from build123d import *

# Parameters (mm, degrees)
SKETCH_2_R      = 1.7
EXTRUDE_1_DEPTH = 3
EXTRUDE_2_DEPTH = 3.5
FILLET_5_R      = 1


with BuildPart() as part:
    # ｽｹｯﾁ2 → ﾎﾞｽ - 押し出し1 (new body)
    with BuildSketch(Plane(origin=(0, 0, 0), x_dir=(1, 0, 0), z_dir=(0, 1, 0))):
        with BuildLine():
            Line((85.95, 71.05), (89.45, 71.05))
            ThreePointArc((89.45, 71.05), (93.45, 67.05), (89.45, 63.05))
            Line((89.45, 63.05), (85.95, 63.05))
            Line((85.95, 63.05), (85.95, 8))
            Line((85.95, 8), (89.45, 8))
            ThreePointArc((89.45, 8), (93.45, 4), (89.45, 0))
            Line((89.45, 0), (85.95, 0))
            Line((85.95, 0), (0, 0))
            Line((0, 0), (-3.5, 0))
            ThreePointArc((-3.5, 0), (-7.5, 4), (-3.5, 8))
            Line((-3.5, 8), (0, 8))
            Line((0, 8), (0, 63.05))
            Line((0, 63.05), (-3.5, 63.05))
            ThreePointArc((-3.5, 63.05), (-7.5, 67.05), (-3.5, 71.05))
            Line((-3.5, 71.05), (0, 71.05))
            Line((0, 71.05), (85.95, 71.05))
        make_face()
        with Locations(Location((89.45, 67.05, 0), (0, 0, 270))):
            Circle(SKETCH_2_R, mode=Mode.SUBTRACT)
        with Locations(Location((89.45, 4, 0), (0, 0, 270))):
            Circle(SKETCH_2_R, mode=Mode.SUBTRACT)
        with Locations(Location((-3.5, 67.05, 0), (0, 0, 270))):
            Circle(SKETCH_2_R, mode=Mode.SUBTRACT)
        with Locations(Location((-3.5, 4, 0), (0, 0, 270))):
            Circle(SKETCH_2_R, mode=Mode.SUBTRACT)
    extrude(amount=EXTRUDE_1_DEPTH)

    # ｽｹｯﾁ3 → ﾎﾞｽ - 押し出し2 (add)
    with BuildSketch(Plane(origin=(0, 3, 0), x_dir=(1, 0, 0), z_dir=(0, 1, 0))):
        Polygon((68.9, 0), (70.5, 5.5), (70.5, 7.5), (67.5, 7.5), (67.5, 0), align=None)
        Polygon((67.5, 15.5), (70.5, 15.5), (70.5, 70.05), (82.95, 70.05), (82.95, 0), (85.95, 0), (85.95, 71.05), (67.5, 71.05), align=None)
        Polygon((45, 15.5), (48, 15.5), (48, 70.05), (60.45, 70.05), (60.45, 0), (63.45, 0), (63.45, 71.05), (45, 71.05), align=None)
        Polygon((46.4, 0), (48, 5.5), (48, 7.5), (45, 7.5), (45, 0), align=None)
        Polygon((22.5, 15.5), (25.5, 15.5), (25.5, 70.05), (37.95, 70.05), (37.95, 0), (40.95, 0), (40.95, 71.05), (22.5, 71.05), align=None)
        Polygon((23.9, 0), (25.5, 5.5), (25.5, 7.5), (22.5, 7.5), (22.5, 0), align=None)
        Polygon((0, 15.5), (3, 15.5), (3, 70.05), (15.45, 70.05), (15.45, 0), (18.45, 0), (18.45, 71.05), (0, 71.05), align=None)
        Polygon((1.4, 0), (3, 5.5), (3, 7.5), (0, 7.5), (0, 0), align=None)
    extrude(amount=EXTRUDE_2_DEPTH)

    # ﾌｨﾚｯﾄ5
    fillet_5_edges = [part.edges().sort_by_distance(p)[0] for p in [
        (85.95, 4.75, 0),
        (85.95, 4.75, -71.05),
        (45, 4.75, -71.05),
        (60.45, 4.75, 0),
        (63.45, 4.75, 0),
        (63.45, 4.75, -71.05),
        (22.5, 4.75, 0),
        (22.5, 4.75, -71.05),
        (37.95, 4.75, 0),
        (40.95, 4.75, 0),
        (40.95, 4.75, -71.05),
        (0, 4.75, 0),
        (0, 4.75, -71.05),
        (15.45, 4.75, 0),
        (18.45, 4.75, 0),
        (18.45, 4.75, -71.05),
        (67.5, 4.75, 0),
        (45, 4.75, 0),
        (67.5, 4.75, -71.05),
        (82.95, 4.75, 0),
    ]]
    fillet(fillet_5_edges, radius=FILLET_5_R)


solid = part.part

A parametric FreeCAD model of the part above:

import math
import FreeCAD as App
import Part
import Sketcher


def edges_at(feature, points):
    """Names of the edges that pass closest to the given points."""
    edges = feature.Shape.Edges
    near = lambda p: min(range(len(edges)), key=lambda i: edges[i].distToShape(Part.Vertex(*p))[0])
    return sorted({f"Edge{near(p) + 1}" for p in points})


def add_polygon(sketch, points):
    """Adds a closed chain of lines whose ends are joined by coincident constraints."""
    first, n = sketch.GeometryCount, len(points)
    for a, b in zip(points, points[1:] + points[:1]):
        sketch.addGeometry(Part.LineSegment(App.Vector(*a, 0), App.Vector(*b, 0)), False)
    for i in range(n):
        sketch.addConstraint(Sketcher.Constraint("Coincident", first + i, 2, first + (i + 1) % n, 1))

doc = App.newDocument("Part")
body = doc.addObject("PartDesign::Body", "Body")

# Sketch on XZ plane
sketch1 = body.newObject("Sketcher::SketchObject", "Sketch")
sketch1.AttachmentSupport = (doc.getObject("XZ_Plane"), [""])
sketch1.MapMode = "FlatFace"
sketch1.addGeometry([
    Part.ArcOfCircle(Part.Circle(App.Vector(89.5, -67, 0), App.Vector(0, 0, 1), 4), math.radians(-90), math.radians(90)),  # 0
    Part.LineSegment(App.Vector(89.5, -71, 0), App.Vector(-3.5, -71, 0)),  # 1
    Part.ArcOfCircle(Part.Circle(App.Vector(-3.5, -67, 0), App.Vector(0, 0, 1), 4), math.radians(90), math.radians(270)),  # 2
    Part.LineSegment(App.Vector(-3.5, -63, 0), App.Vector(0, -63, 0)),  # 3
    Part.LineSegment(App.Vector(0, -63, 0), App.Vector(0, -8, 0)),  # 4
    Part.LineSegment(App.Vector(0, -8, 0), App.Vector(-3.5, -8, 0)),  # 5
    Part.ArcOfCircle(Part.Circle(App.Vector(-3.5, -4, 0), App.Vector(0, 0, 1), 4), math.radians(90), math.radians(270)),  # 6
    Part.LineSegment(App.Vector(-3.5, 0, 0), App.Vector(89.5, 0, 0)),  # 7
    Part.ArcOfCircle(Part.Circle(App.Vector(89.5, -4, 0), App.Vector(0, 0, 1), 4), math.radians(-90), math.radians(90)),  # 8
    Part.LineSegment(App.Vector(89.5, -8, 0), App.Vector(86, -8, 0)),  # 9
    Part.LineSegment(App.Vector(86, -8, 0), App.Vector(86, -63, 0)),  # 10
    Part.LineSegment(App.Vector(86, -63, 0), App.Vector(89.5, -63, 0)),  # 11
    Part.Circle(App.Vector(89.5, -4, 0), App.Vector(0, 0, 1), 1.7),  # 12
    Part.Circle(App.Vector(-3.5, -4, 0), App.Vector(0, 0, 1), 1.7),  # 13
    Part.Circle(App.Vector(89.5, -67, 0), App.Vector(0, 0, 1), 1.7),  # 14
    Part.Circle(App.Vector(-3.5, -67, 0), App.Vector(0, 0, 1), 1.7),  # 15
], False)
sketch1.addConstraint([
    Sketcher.Constraint("Tangent", 0, 1, 1, 1),
    Sketcher.Constraint("Tangent", 1, 2, 2, 2),
    Sketcher.Constraint("Tangent", 2, 1, 3, 1),
    Sketcher.Constraint("Coincident", 3, 2, 4, 1),
    Sketcher.Constraint("Coincident", 4, 2, 5, 1),
    Sketcher.Constraint("Tangent", 5, 2, 6, 2),
    Sketcher.Constraint("Tangent", 6, 1, 7, 1),
    Sketcher.Constraint("Tangent", 7, 2, 8, 2),
    Sketcher.Constraint("Tangent", 8, 1, 9, 1),
    Sketcher.Constraint("Coincident", 9, 2, 10, 1),
    Sketcher.Constraint("Coincident", 10, 2, 11, 1),
    Sketcher.Constraint("Tangent", 11, 2, 0, 2),
    Sketcher.Constraint("Horizontal", 1),
    Sketcher.Constraint("Horizontal", 3),
    Sketcher.Constraint("Vertical", 4),
    Sketcher.Constraint("Horizontal", 5),
    Sketcher.Constraint("Horizontal", 7),
    Sketcher.Constraint("Horizontal", 9),
    Sketcher.Constraint("Vertical", 10),
    Sketcher.Constraint("Horizontal", 11),
    Sketcher.Constraint("Coincident", 12, 3, 8, 3),
    Sketcher.Constraint("Coincident", 13, 3, 6, 3),
    Sketcher.Constraint("Coincident", 14, 3, 0, 3),
    Sketcher.Constraint("Coincident", 15, 3, 2, 3),
    Sketcher.Constraint("Equal", 0, 2),
    Sketcher.Constraint("Equal", 2, 6),
    Sketcher.Constraint("Equal", 6, 8),
    Sketcher.Constraint("Equal", 12, 13),
    Sketcher.Constraint("Equal", 13, 14),
    Sketcher.Constraint("Equal", 14, 15),
    Sketcher.Constraint("PointOnObject", 3, 2, -2),
    Sketcher.Constraint("PointOnObject", 6, 1, -1),
    Sketcher.Constraint("Vertical", 2, 3, 6, 3),
    Sketcher.Constraint("Vertical", 0, 3, 8, 3),
    Sketcher.Constraint("Equal", 5, 9),
    Sketcher.Constraint("Radius", 0, 4.0),
    Sketcher.Constraint("Diameter", 12, 3.4),
    Sketcher.Constraint("DistanceX", 3, 1, 3, 2, 3.5),
    Sketcher.Constraint("DistanceX", 1, 2, 1, 1, 92.95),
    Sketcher.Constraint("DistanceY", 4, 1, 4, 2, 55.05),
])
pad1 = body.newObject("PartDesign::Pad", "Pad")
pad1.Profile = sketch1
pad1.Length = 3
pad1.Reversed = True

# Sketch on XZ plane
sketch2 = body.newObject("Sketcher::SketchObject", "Sketch001")
sketch2.AttachmentSupport = (doc.getObject("XZ_Plane"), [""])
sketch2.MapMode = "FlatFace"
sketch2.AttachmentOffset = App.Placement(App.Vector(0, 0, -3), App.Rotation())
add_polygon(sketch2, [(68.9, 0), (70.5, -5.5), (70.5, -7.5), (67.5, -7.5), (67.5, 0)])  # lines 0-4
add_polygon(sketch2, [(67.5, -15.5), (70.5, -15.5), (70.5, -70), (83, -70), (83, 0), (86, 0), (86, -71), (67.5, -71)])  # lines 5-12
add_polygon(sketch2, [(45, -15.5), (48, -15.5), (48, -70), (60.5, -70), (60.5, 0), (63.5, 0), (63.5, -71), (45, -71)])  # lines 13-20
add_polygon(sketch2, [(46.4, 0), (48, -5.5), (48, -7.5), (45, -7.5), (45, 0)])  # lines 21-25
add_polygon(sketch2, [(22.5, -15.5), (25.5, -15.5), (25.5, -70), (38, -70), (38, 0), (41, 0), (41, -71), (22.5, -71)])  # lines 26-33
add_polygon(sketch2, [(23.9, 0), (25.5, -5.5), (25.5, -7.5), (22.5, -7.5), (22.5, 0)])  # lines 34-38
add_polygon(sketch2, [(0, -15.5), (3, -15.5), (3, -70), (15.4, -70), (15.4, 0), (18.4, 0), (18.4, -71), (0, -71)])  # lines 39-46
add_polygon(sketch2, [(1.4, 0), (3, -5.5), (3, -7.5), (0, -7.5), (0, 0)])  # lines 47-51
sketch2.addConstraint([
    Sketcher.Constraint("Vertical", 1),
    Sketcher.Constraint("Horizontal", 2),
    Sketcher.Constraint("Vertical", 3),
    Sketcher.Constraint("Horizontal", 4),
    Sketcher.Constraint("Horizontal", 5),
    Sketcher.Constraint("Vertical", 6),
    Sketcher.Constraint("Horizontal", 7),
    Sketcher.Constraint("Vertical", 8),
    Sketcher.Constraint("Horizontal", 9),
    Sketcher.Constraint("Vertical", 10),
    Sketcher.Constraint("Horizontal", 11),
    Sketcher.Constraint("Vertical", 12),
    Sketcher.Constraint("Horizontal", 13),
    Sketcher.Constraint("Vertical", 14),
    Sketcher.Constraint("Horizontal", 15),
    Sketcher.Constraint("Vertical", 16),
    Sketcher.Constraint("Horizontal", 17),
    Sketcher.Constraint("Vertical", 18),
    Sketcher.Constraint("Horizontal", 19),
    Sketcher.Constraint("Vertical", 20),
    Sketcher.Constraint("Vertical", 22),
    Sketcher.Constraint("Horizontal", 23),
    Sketcher.Constraint("Vertical", 24),
    Sketcher.Constraint("Horizontal", 25),
    Sketcher.Constraint("Horizontal", 26),
    Sketcher.Constraint("Vertical", 27),
    Sketcher.Constraint("Horizontal", 28),
    Sketcher.Constraint("Vertical", 29),
    Sketcher.Constraint("Horizontal", 30),
    Sketcher.Constraint("Vertical", 31),
    Sketcher.Constraint("Horizontal", 32),
    Sketcher.Constraint("Vertical", 33),
    Sketcher.Constraint("Vertical", 35),
    Sketcher.Constraint("Horizontal", 36),
    Sketcher.Constraint("Vertical", 37),
    Sketcher.Constraint("Horizontal", 38),
    Sketcher.Constraint("Horizontal", 39),
    Sketcher.Constraint("Vertical", 40),
    Sketcher.Constraint("Horizontal", 41),
    Sketcher.Constraint("Vertical", 42),
    Sketcher.Constraint("Horizontal", 43),
    Sketcher.Constraint("Vertical", 44),
    Sketcher.Constraint("Horizontal", 45),
    Sketcher.Constraint("Vertical", 46),
    Sketcher.Constraint("Vertical", 48),
    Sketcher.Constraint("Horizontal", 49),
    Sketcher.Constraint("Vertical", 50),
    Sketcher.Constraint("Horizontal", 51),
    Sketcher.Constraint("Coincident", 50, 2, -1, 1),
    Sketcher.Constraint("PointOnObject", 3, 2, -1),
    Sketcher.Constraint("PointOnObject", 8, 2, -1),
    Sketcher.Constraint("PointOnObject", 16, 2, -1),
    Sketcher.Constraint("PointOnObject", 24, 2, -1),
    Sketcher.Constraint("PointOnObject", 29, 2, -1),
    Sketcher.Constraint("PointOnObject", 37, 2, -1),
    Sketcher.Constraint("PointOnObject", 42, 2, -1),
    Sketcher.Constraint("PointOnObject", 45, 2, -2),
    Sketcher.Constraint("Parallel", 0, 21),
    Sketcher.Constraint("Parallel", 21, 34),
    Sketcher.Constraint("Parallel", 34, 47),
    Sketcher.Constraint("Horizontal", 12, 2, 13, 2),
    Sketcher.Constraint("Horizontal", 7, 2, 14, 2),
    Sketcher.Constraint("Horizontal", 11, 2, 18, 2),
    Sketcher.Constraint("Horizontal", 0, 2, 21, 2),
    Sketcher.Constraint("Horizontal", 2, 2, 22, 2),
    Sketcher.Constraint("Horizontal", 20, 2, 26, 2),
    Sketcher.Constraint("Horizontal", 15, 2, 27, 2),
    Sketcher.Constraint("Horizontal", 19, 2, 31, 2),
    Sketcher.Constraint("Horizontal", 21, 2, 34, 2),
    Sketcher.Constraint("Horizontal", 23, 2, 35, 2),
    Sketcher.Constraint("Horizontal", 33, 2, 39, 2),
    Sketcher.Constraint("Horizontal", 28, 2, 40, 2),
    Sketcher.Constraint("Horizontal", 32, 2, 44, 2),
    Sketcher.Constraint("Horizontal", 34, 2, 47, 2),
    Sketcher.Constraint("Horizontal", 36, 2, 48, 2),
    Sketcher.Constraint("Vertical", 1, 2, 5, 2),
    Sketcher.Constraint("Vertical", 3, 2, 11, 2),
    Sketcher.Constraint("Vertical", 14, 2, 21, 2),
    Sketcher.Constraint("Vertical", 20, 2, 23, 2),
    Sketcher.Constraint("Vertical", 27, 2, 34, 2),
    Sketcher.Constraint("Vertical", 33, 2, 36, 2),
    Sketcher.Constraint("Vertical", 40, 2, 47, 2),
    Sketcher.Constraint("Equal", 5, 9),
    Sketcher.Constraint("Equal", 9, 13),
    Sketcher.Constraint("Equal", 7, 15),
    Sketcher.Constraint("Equal", 13, 17),
    Sketcher.Constraint("Equal", 23, 26),
    Sketcher.Constraint("Equal", 15, 28),
    Sketcher.Constraint("Equal", 26, 30),
    Sketcher.Constraint("Equal", 36, 39),
    Sketcher.Constraint("Equal", 28, 41),
    Sketcher.Constraint("Equal", 39, 43),
    Sketcher.Constraint("DistanceX", 2, 2, 2, 1, 3.0),
    Sketcher.Constraint("DistanceY", 1, 2, 1, 1, 2.0),
    Sketcher.Constraint("DistanceX", 4, 1, 4, 2, 1.4),
    Sketcher.Constraint("DistanceY", 3, 1, 3, 2, 7.5),
    Sketcher.Constraint("DistanceX", -1, 1, 13, 2, 48.0),
    Sketcher.Constraint("DistanceY", 5, 2, 1, 2, 8.0),
    Sketcher.Constraint("DistanceY", 10, 2, 7, 2, 1.0),
    Sketcher.Constraint("DistanceX", 27, 2, 11, 2, 42.0),
    Sketcher.Constraint("DistanceX", 7, 1, 7, 2, 12.45),
    Sketcher.Constraint("DistanceY", 6, 2, 6, 1, 54.55),
    Sketcher.Constraint("DistanceX", -1, 1, 0, 2, 70.5),
])
pad2 = body.newObject("PartDesign::Pad", "Pad001")
pad2.Profile = sketch2
pad2.Length = 3.5
pad2.Reversed = True
doc.recompute()

fillet = body.newObject("PartDesign::Fillet", "Fillet")
fillet.Base = (pad2, edges_at(pad2, [
    (85.95, 4.75, 0),
    (85.95, 4.75, -71.05),
    (45, 4.75, -71.05),
    (60.45, 4.75, 0),
    (63.45, 4.75, 0),
    (63.45, 4.75, -71.05),
    (22.5, 4.75, 0),
    (22.5, 4.75, -71.05),
    (37.95, 4.75, 0),
    (40.95, 4.75, 0),
    (40.95, 4.75, -71.05),
    (0, 4.75, 0),
    (0, 4.75, -71.05),
    (15.45, 4.75, 0),
    (18.45, 4.75, 0),
    (18.45, 4.75, -71.05),
    (67.5, 4.75, 0),
    (45, 4.75, 0),
    (67.5, 4.75, -71.05),
    (82.95, 4.75, 0),
]))
fillet.Radius = 1

doc.recompute()
